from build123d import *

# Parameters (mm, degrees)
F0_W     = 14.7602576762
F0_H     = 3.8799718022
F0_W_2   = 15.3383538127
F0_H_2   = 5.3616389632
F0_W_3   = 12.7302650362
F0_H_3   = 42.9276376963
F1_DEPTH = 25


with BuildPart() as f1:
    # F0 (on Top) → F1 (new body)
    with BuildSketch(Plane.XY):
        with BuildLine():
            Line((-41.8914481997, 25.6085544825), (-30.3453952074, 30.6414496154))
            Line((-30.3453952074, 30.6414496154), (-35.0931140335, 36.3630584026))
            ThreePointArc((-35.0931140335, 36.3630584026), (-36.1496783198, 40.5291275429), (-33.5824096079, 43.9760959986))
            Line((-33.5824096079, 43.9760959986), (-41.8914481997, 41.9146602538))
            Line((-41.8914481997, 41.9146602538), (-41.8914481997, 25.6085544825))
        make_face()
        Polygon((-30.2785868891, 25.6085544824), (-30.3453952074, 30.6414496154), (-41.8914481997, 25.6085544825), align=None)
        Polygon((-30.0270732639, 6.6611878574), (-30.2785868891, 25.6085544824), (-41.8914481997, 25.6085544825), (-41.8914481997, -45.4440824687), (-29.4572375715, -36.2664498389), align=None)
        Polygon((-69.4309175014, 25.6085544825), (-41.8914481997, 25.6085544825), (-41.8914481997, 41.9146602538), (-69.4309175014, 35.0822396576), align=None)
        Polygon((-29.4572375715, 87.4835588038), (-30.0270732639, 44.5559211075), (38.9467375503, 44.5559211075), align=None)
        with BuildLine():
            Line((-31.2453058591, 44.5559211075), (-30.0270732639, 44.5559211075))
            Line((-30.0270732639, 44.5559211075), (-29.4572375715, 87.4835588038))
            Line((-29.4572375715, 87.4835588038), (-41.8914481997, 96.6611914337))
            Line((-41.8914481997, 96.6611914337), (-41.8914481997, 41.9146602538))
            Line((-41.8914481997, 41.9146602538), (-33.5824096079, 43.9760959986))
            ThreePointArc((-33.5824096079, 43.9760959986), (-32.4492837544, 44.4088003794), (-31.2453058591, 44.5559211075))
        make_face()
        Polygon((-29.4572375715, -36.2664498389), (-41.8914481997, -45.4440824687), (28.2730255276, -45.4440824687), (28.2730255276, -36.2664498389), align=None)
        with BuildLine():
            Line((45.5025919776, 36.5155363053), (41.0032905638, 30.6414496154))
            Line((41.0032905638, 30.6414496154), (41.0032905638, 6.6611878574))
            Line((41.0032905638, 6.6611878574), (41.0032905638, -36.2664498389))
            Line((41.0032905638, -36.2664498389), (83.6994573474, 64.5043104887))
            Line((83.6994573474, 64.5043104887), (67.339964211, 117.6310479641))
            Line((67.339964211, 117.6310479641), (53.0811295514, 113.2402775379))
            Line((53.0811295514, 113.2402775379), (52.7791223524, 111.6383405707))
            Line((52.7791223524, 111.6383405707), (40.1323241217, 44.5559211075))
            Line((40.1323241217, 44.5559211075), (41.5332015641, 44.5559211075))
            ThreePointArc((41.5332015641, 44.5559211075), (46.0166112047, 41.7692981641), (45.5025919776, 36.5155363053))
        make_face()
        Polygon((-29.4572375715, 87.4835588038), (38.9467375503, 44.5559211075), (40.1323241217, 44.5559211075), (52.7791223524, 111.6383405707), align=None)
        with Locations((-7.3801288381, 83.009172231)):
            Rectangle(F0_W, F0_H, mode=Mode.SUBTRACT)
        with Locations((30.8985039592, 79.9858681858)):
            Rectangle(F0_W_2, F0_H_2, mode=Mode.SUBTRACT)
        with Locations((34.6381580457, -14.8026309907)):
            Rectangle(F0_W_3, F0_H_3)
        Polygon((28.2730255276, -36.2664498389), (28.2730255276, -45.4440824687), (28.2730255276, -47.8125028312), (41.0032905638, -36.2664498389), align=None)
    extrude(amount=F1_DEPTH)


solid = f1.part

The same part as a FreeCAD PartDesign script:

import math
import FreeCAD as App
import Part
import Sketcher
Q = App.Units.Quantity

doc = App.newDocument("Part")
body = doc.addObject("PartDesign::Body", "Body")

# Sketch on XY plane
sketch1 = body.newObject("Sketcher::SketchObject", "Sketch")
sketch1.AttachmentSupport = (doc.getObject("XY_Plane"), [""])
sketch1.MapMode = "FlatFace"
sketch1.addGeometry([
    Part.LineSegment(App.Vector(-41.891448, -45.444082, 0), App.Vector(28.273026, -45.444082, 0)),  # 0
    Part.LineSegment(App.Vector(28.273026, -45.444082, 0), App.Vector(28.273026, -47.812503, 0)),  # 1
    Part.LineSegment(App.Vector(28.273026, -47.812503, 0), App.Vector(41.003291, -36.26645, 0)),  # 2
    Part.LineSegment(App.Vector(41.003291, -36.26645, 0), App.Vector(83.699457, 64.50431, 0)),  # 3
    Part.LineSegment(App.Vector(83.699457, 64.50431, 0), App.Vector(67.339964, 117.631048, 0)),  # 4
    Part.LineSegment(App.Vector(67.339964, 117.631048, 0), App.Vector(53.08113, 113.240278, 0)),  # 5
    Part.LineSegment(App.Vector(53.08113, 113.240278, 0), App.Vector(52.779122, 111.638341, 0)),  # 6
    Part.LineSegment(App.Vector(52.779122, 111.638341, 0), App.Vector(-29.457238, 87.483559, 0)),  # 7
    Part.LineSegment(App.Vector(-29.457238, 87.483559, 0), App.Vector(-41.891448, 96.661191, 0)),  # 8
    Part.LineSegment(App.Vector(-41.891448, 96.661191, 0), App.Vector(-41.891448, 41.91466, 0)),  # 9
    Part.LineSegment(App.Vector(-41.891448, 41.91466, 0), App.Vector(-69.430918, 35.08224, 0)),  # 10
    Part.LineSegment(App.Vector(-69.430918, 35.08224, 0), App.Vector(-69.430918, 25.608554, 0)),  # 11
    Part.LineSegment(App.Vector(-69.430918, 25.608554, 0), App.Vector(-41.891448, 25.608554, 0)),  # 12
    Part.LineSegment(App.Vector(-41.891448, 25.608554, 0), App.Vector(-41.891448, -45.444082, 0)),  # 13
    Part.LineSegment(App.Vector(28.273026, 6.661188, 0), App.Vector(28.273026, -36.26645, 0)),  # 14
    Part.LineSegment(App.Vector(28.273026, -36.26645, 0), App.Vector(-29.457238, -36.26645, 0)),  # 15
    Part.LineSegment(App.Vector(-29.457238, -36.26645, 0), App.Vector(-30.027073, 6.661188, 0)),  # 16
    Part.LineSegment(App.Vector(-30.027073, 6.661188, 0), App.Vector(-30.278587, 25.608554, 0)),  # 17
    Part.LineSegment(App.Vector(-30.278587, 25.608554, 0), App.Vector(-30.345395, 30.64145, 0)),  # 18
    Part.LineSegment(App.Vector(-30.345395, 30.64145, 0), App.Vector(-35.093114, 36.363058, 0)),  # 19
    Part.ArcOfCircle(Part.Circle(App.Vector(-31.245306, 39.555921, 0), App.Vector(0, 0, 1), 5), math.radians(117.867002), math.radians(219.68546)),  # 20
    Part.ArcOfCircle(Part.Circle(App.Vector(-31.245306, 39.555921, 0), App.Vector(0, 0, 1), 5), math.radians(90), math.radians(117.867002)),  # 21
    Part.LineSegment(App.Vector(-31.245306, 44.555921, 0), App.Vector(41.533202, 44.555921, 0)),  # 22
    Part.ArcOfCircle(Part.Circle(App.Vector(41.533202, 39.555921, 0), App.Vector(0, 0, 1), 5), math.radians(-37.450584), math.radians(90)),  # 23
    Part.LineSegment(App.Vector(45.502592, 36.515536, 0), App.Vector(41.003291, 30.64145, 0)),  # 24
    Part.LineSegment(App.Vector(41.003291, 30.64145, 0), App.Vector(41.003291, 6.661188, 0)),  # 25
    Part.LineSegment(App.Vector(41.003291, 6.661188, 0), App.Vector(28.273026, 6.661188, 0)),  # 26
    Part.LineSegment(App.Vector(0, 81.069186, 0), App.Vector(-14.760258, 81.069186, 0)),  # 27
    Part.LineSegment(App.Vector(-14.760258, 81.069186, 0), App.Vector(-14.760258, 84.949158, 0)),  # 28
    Part.LineSegment(App.Vector(-14.760258, 84.949158, 0), App.Vector(0, 84.949158, 0)),  # 29
    Part.LineSegment(App.Vector(0, 84.949158, 0), App.Vector(0, 81.069186, 0)),  # 30
    Part.LineSegment(App.Vector(38.567681, 77.305049, 0), App.Vector(23.229327, 77.305049, 0)),  # 31
    Part.LineSegment(App.Vector(23.229327, 77.305049, 0), App.Vector(23.229327, 82.666688, 0)),  # 32
    Part.LineSegment(App.Vector(23.229327, 82.666688, 0), App.Vector(38.567681, 82.666688, 0)),  # 33
    Part.LineSegment(App.Vector(38.567681, 82.666688, 0), App.Vector(38.567681, 77.305049, 0)),  # 34
], False)
sketch1.addConstraint([
    Sketcher.Constraint("Coincident", 0, 2, 1, 1),
    Sketcher.Constraint("Coincident", 1, 2, 2, 1),
    Sketcher.Constraint("Coincident", 2, 2, 3, 1),
    Sketcher.Constraint("Coincident", 3, 2, 4, 1),
    Sketcher.Constraint("Coincident", 4, 2, 5, 1),
    Sketcher.Constraint("Coincident", 5, 2, 6, 1),
    Sketcher.Constraint("Coincident", 6, 2, 7, 1),
    Sketcher.Constraint("Coincident", 7, 2, 8, 1),
    Sketcher.Constraint("Coincident", 8, 2, 9, 1),
    Sketcher.Constraint("Coincident", 9, 2, 10, 1),
    Sketcher.Constraint("Coincident", 10, 2, 11, 1),
    Sketcher.Constraint("Coincident", 11, 2, 12, 1),
    Sketcher.Constraint("Coincident", 12, 2, 13, 1),
    Sketcher.Constraint("Coincident", 13, 2, 0, 1),
    Sketcher.Constraint("Coincident", 14, 2, 15, 1),
    Sketcher.Constraint("Coincident", 15, 2, 16, 1),
    Sketcher.Constraint("Coincident", 16, 2, 17, 1),
    Sketcher.Constraint("Coincident", 17, 2, 18, 1),
    Sketcher.Constraint("Coincident", 18, 2, 19, 1),
    Sketcher.Constraint("Coincident", 19, 2, 20, 2),
    Sketcher.Constraint("Coincident", 20, 1, 21, 2),
    Sketcher.Constraint("Coincident", 21, 1, 22, 1),
    Sketcher.Constraint("Coincident", 22, 2, 23, 2),
    Sketcher.Constraint("Coincident", 23, 1, 24, 1),
    Sketcher.Constraint("Coincident", 24, 2, 25, 1),
    Sketcher.Constraint("Coincident", 25, 2, 26, 1),
    Sketcher.Constraint("Coincident", 26, 2, 14, 1),
    Sketcher.Constraint("Coincident", 27, 2, 28, 1),
    Sketcher.Constraint("Coincident", 28, 2, 29, 1),
    Sketcher.Constraint("Coincident", 29, 2, 30, 1),
    Sketcher.Constraint("Coincident", 30, 2, 27, 1),
    Sketcher.Constraint("Coincident", 31, 2, 32, 1),
    Sketcher.Constraint("Coincident", 32, 2, 33, 1),
    Sketcher.Constraint("Coincident", 33, 2, 34, 1),
    Sketcher.Constraint("Coincident", 34, 2, 31, 1),
    Sketcher.Constraint("Horizontal", 0),
    Sketcher.Constraint("Vertical", 1),
    Sketcher.Constraint("Vertical", 9),
    Sketcher.Constraint("Vertical", 11),
    Sketcher.Constraint("Horizontal", 12),
    Sketcher.Constraint("Vertical", 13),
    Sketcher.Constraint("Vertical", 14),
    Sketcher.Constraint("Horizontal", 15),
    Sketcher.Constraint("Horizontal", 22),
    Sketcher.Constraint("Vertical", 25),
    Sketcher.Constraint("Horizontal", 26),
    Sketcher.Constraint("Horizontal", 27),
    Sketcher.Constraint("Vertical", 28),
    Sketcher.Constraint("Horizontal", 29),
    Sketcher.Constraint("Vertical", 30),
    Sketcher.Constraint("Horizontal", 31),
    Sketcher.Constraint("Vertical", 32),
    Sketcher.Constraint("Horizontal", 33),
    Sketcher.Constraint("Vertical", 34),
    Sketcher.Constraint("Coincident", 21, 3, 20, 3),
    Sketcher.Constraint("PointOnObject", 29, 2, -2),
    Sketcher.Constraint("Radius", 20, Q("5 mm")),
    Sketcher.Constraint("Radius", 23, Q("5 mm")),
    Sketcher.Constraint("Distance", 7, Q("85.710398 mm")),
    Sketcher.Constraint("Distance", 8, Q("15.454402 mm")),
    Sketcher.Constraint("DistanceX", 12, 1, 12, 2, Q("27.539469 mm")),
    Sketcher.Constraint("DistanceY", 1, 2, 1, 1, Q("2.36842 mm")),
    Sketcher.Constraint("DistanceY", 9, 2, 9, 1, Q("54.746531 mm")),
    Sketcher.Constraint("DistanceY", 25, 2, 25, 1, Q("23.980262 mm")),
    Sketcher.Constraint("DistanceY", 28, 1, 28, 2, Q("3.879972 mm")),
    Sketcher.Constraint("DistanceY", 32, 1, 32, 2, Q("5.361639 mm")),
    Sketcher.Constraint("DistanceX", -1, 1, 23, 3, Q("41.533202 mm")),
    Sketcher.Constraint("DistanceX", -1, 1, 22, 2, Q("41.533202 mm")),
    Sketcher.Constraint("DistanceY", 9, 2, 7, 2, Q("45.568899 mm")),
    Sketcher.Constraint("DistanceY", 19, 2, 9, 2, Q("5.551602 mm")),
    Sketcher.Constraint("DistanceX", 2, 2, 23, 1, Q("4.499301 mm")),
    Sketcher.Constraint("DistanceX", 24, 2, 23, 1, Q("4.499301 mm")),
    Sketcher.Constraint("DistanceY", 2, 2, 24, 2, Q("66.907899 mm")),
    Sketcher.Constraint("DistanceY", 28, 2, 7, 2, Q("2.534401 mm")),
    Sketcher.Constraint("DistanceY", 30, 2, 32, 2, Q("1.597501 mm")),
    Sketcher.Constraint("Distance", 2, Q("17.186361 mm")),
    Sketcher.Constraint("Distance", 3, Q("109.442719 mm")),
    Sketcher.Constraint("Distance", 5, Q("14.919559 mm")),
    Sketcher.Constraint("Distance", 10, Q("28.374361 mm")),
    Sketcher.Constraint("Distance", 16, Q("42.93142 mm")),
    Sketcher.Constraint("Distance", 18, Q("5.033339 mm")),
    Sketcher.Constraint("Distance", 24, Q("7.39923 mm")),
    Sketcher.Constraint("DistanceX", 0, 1, 0, 2, Q("70.164474 mm")),
    Sketcher.Constraint("DistanceX", 15, 2, 15, 1, Q("57.730263 mm")),
    Sketcher.Constraint("DistanceX", 22, 1, 22, 2, Q("72.778507 mm")),
    Sketcher.Constraint("DistanceX", 26, 2, 26, 1, Q("12.730265 mm")),
    Sketcher.Constraint("DistanceX", 27, 2, 27, 1, Q("14.760258 mm")),
    Sketcher.Constraint("DistanceX", 31, 2, 31, 1, Q("15.338354 mm")),
    Sketcher.Constraint("DistanceY", 11, 2, 11, 1, Q("9.473685 mm")),
    Sketcher.Constraint("DistanceY", 13, 2, 13, 1, Q("71.052637 mm")),
    Sketcher.Constraint("DistanceY", 14, 2, 14, 1, Q("42.927638 mm")),
    Sketcher.Constraint("DistanceY", -1, 1, 20, 3, Q("39.555921 mm")),
    Sketcher.Constraint("DistanceX", -1, 1, 2, 2, Q("41.003291 mm")),
    Sketcher.Constraint("DistanceY", -1, 1, 3, 2, Q("64.50431 mm")),
    Sketcher.Constraint("DistanceX", -1, 1, 5, 2, Q("53.08113 mm")),
    Sketcher.Constraint("DistanceY", -1, 1, 6, 2, Q("111.638341 mm")),
    Sketcher.Constraint("DistanceY", -1, 1, 7, 2, Q("87.483559 mm")),
    Sketcher.Constraint("DistanceX", 8, 2, -1, 1, Q("41.891448 mm")),
    Sketcher.Constraint("DistanceY", -1, 1, 18, 2, Q("30.64145 mm")),
    Sketcher.Constraint("DistanceX", 20, 1, -1, 1, Q("33.58241 mm")),
    Sketcher.Constraint("DistanceX", -1, 1, 33, 2, Q("38.567681 mm")),
    Sketcher.Constraint("DistanceX", 21, 3, 0, 2, Q("59.518331 mm")),
    Sketcher.Constraint("DistanceX", 20, 3, 4, 2, Q("98.58527 mm")),
    Sketcher.Constraint("DistanceY", 7, 2, 5, 2, Q("25.756719 mm")),
    Sketcher.Constraint("DistanceX", 12, 2, 17, 2, Q("11.612861 mm")),
    Sketcher.Constraint("DistanceX", 18, 2, 17, 2, Q("0.066808 mm")),
    Sketcher.Constraint("DistanceX", 16, 2, -1, 1, Q("30.027073 mm")),
])
pad1 = body.newObject("PartDesign::Pad", "Pad")
pad1.Profile = sketch1
pad1.Length = 25

doc.recompute()
